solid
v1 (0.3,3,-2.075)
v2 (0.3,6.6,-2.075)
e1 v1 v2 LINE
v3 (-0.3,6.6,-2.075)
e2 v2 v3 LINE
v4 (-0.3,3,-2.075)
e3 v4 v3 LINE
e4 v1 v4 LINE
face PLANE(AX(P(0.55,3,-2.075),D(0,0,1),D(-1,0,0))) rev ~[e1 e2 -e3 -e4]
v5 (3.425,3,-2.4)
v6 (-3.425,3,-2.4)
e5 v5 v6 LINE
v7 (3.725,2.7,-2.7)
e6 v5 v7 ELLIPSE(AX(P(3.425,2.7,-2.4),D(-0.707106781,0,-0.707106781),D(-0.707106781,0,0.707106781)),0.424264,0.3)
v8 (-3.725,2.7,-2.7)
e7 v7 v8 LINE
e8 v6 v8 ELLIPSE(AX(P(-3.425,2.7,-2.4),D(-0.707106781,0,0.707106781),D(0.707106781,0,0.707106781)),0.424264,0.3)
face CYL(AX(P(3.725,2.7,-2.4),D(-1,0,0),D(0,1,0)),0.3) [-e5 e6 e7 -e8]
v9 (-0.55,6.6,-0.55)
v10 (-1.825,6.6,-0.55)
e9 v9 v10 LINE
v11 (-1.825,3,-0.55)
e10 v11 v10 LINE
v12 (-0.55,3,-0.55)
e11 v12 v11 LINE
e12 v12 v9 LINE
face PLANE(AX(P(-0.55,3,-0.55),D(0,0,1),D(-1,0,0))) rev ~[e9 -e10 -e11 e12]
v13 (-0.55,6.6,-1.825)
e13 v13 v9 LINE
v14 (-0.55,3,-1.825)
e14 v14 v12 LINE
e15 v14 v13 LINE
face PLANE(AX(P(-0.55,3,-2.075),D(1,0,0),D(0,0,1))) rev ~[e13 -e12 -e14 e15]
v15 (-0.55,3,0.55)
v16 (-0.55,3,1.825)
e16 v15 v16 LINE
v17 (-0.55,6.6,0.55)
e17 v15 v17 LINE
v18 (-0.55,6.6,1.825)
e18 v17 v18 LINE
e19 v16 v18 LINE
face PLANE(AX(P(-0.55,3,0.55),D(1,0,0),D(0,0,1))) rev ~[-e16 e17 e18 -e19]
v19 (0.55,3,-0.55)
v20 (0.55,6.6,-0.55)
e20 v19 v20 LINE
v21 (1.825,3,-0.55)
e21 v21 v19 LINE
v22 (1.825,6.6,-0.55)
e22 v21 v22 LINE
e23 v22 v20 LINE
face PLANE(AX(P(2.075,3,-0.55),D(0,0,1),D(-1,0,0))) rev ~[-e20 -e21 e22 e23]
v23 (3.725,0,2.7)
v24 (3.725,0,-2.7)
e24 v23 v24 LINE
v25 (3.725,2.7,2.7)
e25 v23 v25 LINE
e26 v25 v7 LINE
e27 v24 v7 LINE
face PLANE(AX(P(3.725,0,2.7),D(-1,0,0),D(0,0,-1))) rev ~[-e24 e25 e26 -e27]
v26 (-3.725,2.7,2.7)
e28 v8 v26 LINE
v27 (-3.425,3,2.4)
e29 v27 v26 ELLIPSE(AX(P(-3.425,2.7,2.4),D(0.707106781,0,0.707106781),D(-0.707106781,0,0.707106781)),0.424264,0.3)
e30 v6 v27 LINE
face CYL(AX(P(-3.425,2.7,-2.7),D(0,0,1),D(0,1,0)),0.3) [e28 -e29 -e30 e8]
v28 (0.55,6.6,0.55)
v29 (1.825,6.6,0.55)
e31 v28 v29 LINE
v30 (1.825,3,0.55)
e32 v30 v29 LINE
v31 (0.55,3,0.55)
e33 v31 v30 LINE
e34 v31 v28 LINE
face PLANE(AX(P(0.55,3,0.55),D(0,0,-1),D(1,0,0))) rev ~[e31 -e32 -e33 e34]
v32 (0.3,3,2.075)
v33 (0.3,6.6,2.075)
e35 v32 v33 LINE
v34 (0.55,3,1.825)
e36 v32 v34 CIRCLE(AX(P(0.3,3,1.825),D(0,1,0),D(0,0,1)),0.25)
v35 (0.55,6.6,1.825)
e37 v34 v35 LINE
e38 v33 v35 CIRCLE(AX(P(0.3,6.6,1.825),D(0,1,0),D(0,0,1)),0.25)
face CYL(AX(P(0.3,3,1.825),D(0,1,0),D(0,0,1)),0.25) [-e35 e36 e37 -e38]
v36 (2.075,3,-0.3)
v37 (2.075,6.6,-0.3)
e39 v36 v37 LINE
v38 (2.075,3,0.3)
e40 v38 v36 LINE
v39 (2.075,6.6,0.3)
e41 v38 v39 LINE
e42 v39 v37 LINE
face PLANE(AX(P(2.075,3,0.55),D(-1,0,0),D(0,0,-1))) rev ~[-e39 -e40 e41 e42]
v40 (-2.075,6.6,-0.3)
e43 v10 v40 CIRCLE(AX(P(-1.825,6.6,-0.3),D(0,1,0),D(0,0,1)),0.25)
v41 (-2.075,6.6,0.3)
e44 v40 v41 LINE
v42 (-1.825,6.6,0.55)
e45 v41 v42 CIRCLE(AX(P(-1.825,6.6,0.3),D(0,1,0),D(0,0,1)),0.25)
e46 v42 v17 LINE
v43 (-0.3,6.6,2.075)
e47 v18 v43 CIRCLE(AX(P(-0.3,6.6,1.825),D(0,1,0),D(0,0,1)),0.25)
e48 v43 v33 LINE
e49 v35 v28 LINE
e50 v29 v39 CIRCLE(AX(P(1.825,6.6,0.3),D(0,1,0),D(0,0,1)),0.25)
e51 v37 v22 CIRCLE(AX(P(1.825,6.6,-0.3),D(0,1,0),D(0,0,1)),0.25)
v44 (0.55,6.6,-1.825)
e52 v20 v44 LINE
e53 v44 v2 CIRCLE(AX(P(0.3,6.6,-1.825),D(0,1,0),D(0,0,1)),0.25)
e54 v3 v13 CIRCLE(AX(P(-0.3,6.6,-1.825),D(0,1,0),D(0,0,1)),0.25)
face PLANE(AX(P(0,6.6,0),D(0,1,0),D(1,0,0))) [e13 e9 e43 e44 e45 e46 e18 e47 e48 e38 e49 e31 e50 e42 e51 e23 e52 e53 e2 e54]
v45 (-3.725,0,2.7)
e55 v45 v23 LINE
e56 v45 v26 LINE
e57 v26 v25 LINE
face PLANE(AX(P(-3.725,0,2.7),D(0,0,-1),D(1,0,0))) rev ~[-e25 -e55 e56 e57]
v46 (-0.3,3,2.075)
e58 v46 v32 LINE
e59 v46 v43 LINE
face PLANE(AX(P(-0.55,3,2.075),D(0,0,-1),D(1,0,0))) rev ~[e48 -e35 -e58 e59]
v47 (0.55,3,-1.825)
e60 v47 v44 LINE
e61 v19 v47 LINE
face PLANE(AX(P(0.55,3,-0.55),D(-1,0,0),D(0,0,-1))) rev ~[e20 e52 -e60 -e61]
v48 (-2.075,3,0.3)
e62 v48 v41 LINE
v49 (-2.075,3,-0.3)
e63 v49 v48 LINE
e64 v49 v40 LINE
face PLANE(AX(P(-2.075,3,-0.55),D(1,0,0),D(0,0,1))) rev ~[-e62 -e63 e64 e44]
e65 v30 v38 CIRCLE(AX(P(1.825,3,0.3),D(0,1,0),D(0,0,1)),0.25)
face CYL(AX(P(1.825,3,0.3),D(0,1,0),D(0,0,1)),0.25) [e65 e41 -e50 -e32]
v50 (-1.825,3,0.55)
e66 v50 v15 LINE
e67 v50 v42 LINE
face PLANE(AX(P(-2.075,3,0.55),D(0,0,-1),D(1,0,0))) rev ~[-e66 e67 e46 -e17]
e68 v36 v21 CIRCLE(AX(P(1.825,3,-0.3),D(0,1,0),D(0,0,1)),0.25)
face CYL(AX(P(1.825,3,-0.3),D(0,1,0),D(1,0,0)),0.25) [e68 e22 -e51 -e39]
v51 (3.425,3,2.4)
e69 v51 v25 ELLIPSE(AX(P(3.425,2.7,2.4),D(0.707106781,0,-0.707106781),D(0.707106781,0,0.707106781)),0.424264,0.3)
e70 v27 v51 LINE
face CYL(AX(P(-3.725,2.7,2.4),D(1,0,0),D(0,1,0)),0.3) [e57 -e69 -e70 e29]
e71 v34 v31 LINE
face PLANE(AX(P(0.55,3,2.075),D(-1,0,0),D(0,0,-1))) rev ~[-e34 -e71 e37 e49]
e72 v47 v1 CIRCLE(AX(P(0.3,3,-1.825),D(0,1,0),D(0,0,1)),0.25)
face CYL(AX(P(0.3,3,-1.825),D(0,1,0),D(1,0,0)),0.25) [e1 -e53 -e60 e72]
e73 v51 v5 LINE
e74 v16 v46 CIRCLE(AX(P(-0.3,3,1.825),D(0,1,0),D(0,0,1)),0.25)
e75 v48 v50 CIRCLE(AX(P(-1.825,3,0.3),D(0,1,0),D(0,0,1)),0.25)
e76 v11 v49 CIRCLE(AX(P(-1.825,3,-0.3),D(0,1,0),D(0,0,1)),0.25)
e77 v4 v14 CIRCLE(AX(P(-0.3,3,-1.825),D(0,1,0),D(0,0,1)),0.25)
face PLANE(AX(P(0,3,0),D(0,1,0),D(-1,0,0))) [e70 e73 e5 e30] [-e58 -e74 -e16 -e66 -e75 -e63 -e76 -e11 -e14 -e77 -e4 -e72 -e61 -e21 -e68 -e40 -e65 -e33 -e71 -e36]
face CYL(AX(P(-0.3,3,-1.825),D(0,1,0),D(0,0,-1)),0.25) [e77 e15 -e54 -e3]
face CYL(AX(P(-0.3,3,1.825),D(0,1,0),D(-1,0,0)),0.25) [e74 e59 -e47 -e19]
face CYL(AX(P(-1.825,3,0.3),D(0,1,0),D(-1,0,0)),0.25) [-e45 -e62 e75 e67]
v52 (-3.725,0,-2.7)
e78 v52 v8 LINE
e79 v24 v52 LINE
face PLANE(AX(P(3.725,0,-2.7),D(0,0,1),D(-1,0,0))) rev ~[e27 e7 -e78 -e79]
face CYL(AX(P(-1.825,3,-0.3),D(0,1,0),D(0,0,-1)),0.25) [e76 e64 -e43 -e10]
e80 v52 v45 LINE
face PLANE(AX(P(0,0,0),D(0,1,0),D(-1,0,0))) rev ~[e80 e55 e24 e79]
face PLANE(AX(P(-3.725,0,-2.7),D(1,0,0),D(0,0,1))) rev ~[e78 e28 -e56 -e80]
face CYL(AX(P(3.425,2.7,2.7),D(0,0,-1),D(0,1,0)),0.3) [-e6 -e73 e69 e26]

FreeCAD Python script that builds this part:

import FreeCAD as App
import Part
import Sketcher
Q = App.Units.Quantity


def edges_at(feature, points):
    """Names of the edges that pass closest to the given points."""
    edges = feature.Shape.Edges
    near = lambda p: min(range(len(edges)), key=lambda i: edges[i].distToShape(Part.Vertex(*p))[0])
    return sorted({f"Edge{near(p) + 1}" for p in points})

doc = App.newDocument("Part")
body = doc.addObject("PartDesign::Body", "Body")

# Sketch on XZ plane
sketch1 = doc.addObject("Sketcher::SketchObject", "Sketch")
body.addObject(sketch1)
sketch1.AttachmentSupport = (doc.XZ_Plane, [""])
sketch1.MapMode = "FlatFace"
sketch1.addGeometry(Part.LineSegment(App.Vector(-4, -3, 0), App.Vector(-4, 3, 0)), False)
sketch1.addGeometry(Part.LineSegment(App.Vector(-4, 3, 0), App.Vector(4, 3, 0)), False)
sketch1.addGeometry(Part.LineSegment(App.Vector(4, 3, 0), App.Vector(4, -3, 0)), False)
sketch1.addGeometry(Part.LineSegment(App.Vector(4, -3, 0), App.Vector(-4, -3, 0)), False)
sketch1.addConstraint(Sketcher.Constraint("Coincident", 0, 2, 1, 1))
sketch1.addConstraint(Sketcher.Constraint("Coincident", 1, 2, 2, 1))
sketch1.addConstraint(Sketcher.Constraint("Coincident", 2, 2, 3, 1))
sketch1.addConstraint(Sketcher.Constraint("Coincident", 3, 2, 0, 1))
sketch1.addConstraint(Sketcher.Constraint("Vertical", 0))
sketch1.addConstraint(Sketcher.Constraint("Horizontal", 1))
sketch1.addConstraint(Sketcher.Constraint("Vertical", 2))
sketch1.addConstraint(Sketcher.Constraint("Horizontal", 3))
sketch1.addConstraint(Sketcher.Constraint("Symmetric", 0, 2, 2, 2, -1, 1))
sketch1.addConstraint(Sketcher.Constraint("DistanceY", 0, 1, 0, 2, Q("5.4 mm")))
sketch1.addConstraint(Sketcher.Constraint("DistanceX", 1, 1, 1, 2, Q("7.45 mm")))
pad1 = doc.addObject("PartDesign::Pad", "Pad")
body.addObject(pad1)
pad1.Profile = sketch1
pad1.Length = 3
pad1.Reversed = True

# Sketch on XZ plane
sketch2 = doc.addObject("Sketcher::SketchObject", "Sketch001")
body.addObject(sketch2)
sketch2.AttachmentSupport = (doc.XZ_Plane, [""])
sketch2.MapMode = "FlatFace"
sketch2.AttachmentOffset = App.Placement(App.Vector(0, 0, -3), App.Rotation())
sketch2.addGeometry(Part.LineSegment(App.Vector(-0.6, 0.6, 0), App.Vector(-0.6, 2.1, 0)), False)
sketch2.addGeometry(Part.LineSegment(App.Vector(-0.6, 2.1, 0), App.Vector(0.6, 2.1, 0)), False)
sketch2.addGeometry(Part.LineSegment(App.Vector(0.6, 2.1, 0), App.Vector(0.6, 0.6, 0)), False)
sketch2.addGeometry(Part.LineSegment(App.Vector(0.6, 0.6, 0), App.Vector(2.1, 0.6, 0)), False)
sketch2.addGeometry(Part.LineSegment(App.Vector(2.1, 0.6, 0), App.Vector(2.1, -0.6, 0)), False)
sketch2.addGeometry(Part.LineSegment(App.Vector(2.1, -0.6, 0), App.Vector(0.6, -0.6, 0)), False)
sketch2.addGeometry(Part.LineSegment(App.Vector(0.6, -0.6, 0), App.Vector(0.6, -2.1, 0)), False)
sketch2.addGeometry(Part.LineSegment(App.Vector(0.6, -2.1, 0), App.Vector(-0.6, -2.1, 0)), False)
sketch2.addGeometry(Part.LineSegment(App.Vector(-0.6, -2.1, 0), App.Vector(-0.6, -0.6, 0)), False)
sketch2.addGeometry(Part.LineSegment(App.Vector(-0.6, -0.6, 0), App.Vector(-2.1, -0.6, 0)), False)
sketch2.addGeometry(Part.LineSegment(App.Vector(-2.1, -0.6, 0), App.Vector(-2.1, 0.6, 0)), False)
sketch2.addGeometry(Part.LineSegment(App.Vector(-2.1, 0.6, 0), App.Vector(-0.6, 0.6, 0)), False)
sketch2.addConstraint(Sketcher.Constraint("Coincident", 0, 2, 1, 1))
sketch2.addConstraint(Sketcher.Constraint("Coincident", 1, 2, 2, 1))
sketch2.addConstraint(Sketcher.Constraint("Coincident", 2, 2, 3, 1))
sketch2.addConstraint(Sketcher.Constraint("Coincident", 3, 2, 4, 1))
sketch2.addConstraint(Sketcher.Constraint("Coincident", 4, 2, 5, 1))
sketch2.addConstraint(Sketcher.Constraint("Coincident", 5, 2, 6, 1))
sketch2.addConstraint(Sketcher.Constraint("Coincident", 6, 2, 7, 1))
sketch2.addConstraint(Sketcher.Constraint("Coincident", 7, 2, 8, 1))
sketch2.addConstraint(Sketcher.Constraint("Coincident", 8, 2, 9, 1))
sketch2.addConstraint(Sketcher.Constraint("Coincident", 9, 2, 10, 1))
sketch2.addConstraint(Sketcher.Constraint("Coincident", 10, 2, 11, 1))
sketch2.addConstraint(Sketcher.Constraint("Coincident", 11, 2, 0, 1))
sketch2.addConstraint(Sketcher.Constraint("Vertical", 0))
sketch2.addConstraint(Sketcher.Constraint("Horizontal", 1))
sketch2.addConstraint(Sketcher.Constraint("Vertical", 2))
sketch2.addConstraint(Sketcher.Constraint("Horizontal", 3))
sketch2.addConstraint(Sketcher.Constraint("Vertical", 4))
sketch2.addConstraint(Sketcher.Constraint("Horizontal", 5))
sketch2.addConstraint(Sketcher.Constraint("Vertical", 6))
sketch2.addConstraint(Sketcher.Constraint("Horizontal", 7))
sketch2.addConstraint(Sketcher.Constraint("Vertical", 8))
sketch2.addConstraint(Sketcher.Constraint("Horizontal", 9))
sketch2.addConstraint(Sketcher.Constraint("Vertical", 10))
sketch2.addConstraint(Sketcher.Constraint("Horizontal", 11))
sketch2.addConstraint(Sketcher.Constraint("Symmetric", 0, 2, 6, 2, -1, 1))
sketch2.addConstraint(Sketcher.Constraint("Symmetric", 2, 2, 8, 2, -1, 1))
sketch2.addConstraint(Sketcher.Constraint("Symmetric", 4, 2, 10, 2, -1, 1))
sketch2.addConstraint(Sketcher.Constraint("Symmetric", 5, 2, 8, 2, -2))
sketch2.addConstraint(Sketcher.Constraint("Equal", 11, 0))
sketch2.addConstraint(Sketcher.Constraint("Equal", 7, 4))
sketch2.addConstraint(Sketcher.Constraint("DistanceX", 1, 1, 1, 2, Q("1.1 mm")))
sketch2.addConstraint(Sketcher.Constraint("DistanceY", 6, 2, 1, 2, Q("4.15 mm")))
pad2 = doc.addObject("PartDesign::Pad", "Pad001")
body.addObject(pad2)
pad2.Profile = sketch2
pad2.Length = 3.6
pad2.Reversed = True
doc.recompute()

fillet = doc.addObject("PartDesign::Fillet", "Fillet")
body.addObject(fillet)
fillet.Base = (pad2, edges_at(pad2, [
    (2.075, 4.8, 0.55),
    (0.55, 4.8, 2.075),
    (-0.55, 4.8, 2.075),
    (-2.075, 4.8, 0.55),
    (-2.075, 4.8, -0.55),
    (-0.55, 4.8, -2.075),
    (0.55, 4.8, -2.075),
    (2.075, 4.8, -0.55),
]))
fillet.Radius = 0.25
doc.recompute()

fillet2 = doc.addObject("PartDesign::Fillet", "Fillet001")
body.addObject(fillet2)
fillet2.Base = (fillet, edges_at(fillet, [
    (-3.725, 3, 0),
    (0, 3, -2.7),
    (0, 3, 2.7),
    (3.725, 3, 0),
]))
fillet2.Radius = 0.3

doc.recompute()
